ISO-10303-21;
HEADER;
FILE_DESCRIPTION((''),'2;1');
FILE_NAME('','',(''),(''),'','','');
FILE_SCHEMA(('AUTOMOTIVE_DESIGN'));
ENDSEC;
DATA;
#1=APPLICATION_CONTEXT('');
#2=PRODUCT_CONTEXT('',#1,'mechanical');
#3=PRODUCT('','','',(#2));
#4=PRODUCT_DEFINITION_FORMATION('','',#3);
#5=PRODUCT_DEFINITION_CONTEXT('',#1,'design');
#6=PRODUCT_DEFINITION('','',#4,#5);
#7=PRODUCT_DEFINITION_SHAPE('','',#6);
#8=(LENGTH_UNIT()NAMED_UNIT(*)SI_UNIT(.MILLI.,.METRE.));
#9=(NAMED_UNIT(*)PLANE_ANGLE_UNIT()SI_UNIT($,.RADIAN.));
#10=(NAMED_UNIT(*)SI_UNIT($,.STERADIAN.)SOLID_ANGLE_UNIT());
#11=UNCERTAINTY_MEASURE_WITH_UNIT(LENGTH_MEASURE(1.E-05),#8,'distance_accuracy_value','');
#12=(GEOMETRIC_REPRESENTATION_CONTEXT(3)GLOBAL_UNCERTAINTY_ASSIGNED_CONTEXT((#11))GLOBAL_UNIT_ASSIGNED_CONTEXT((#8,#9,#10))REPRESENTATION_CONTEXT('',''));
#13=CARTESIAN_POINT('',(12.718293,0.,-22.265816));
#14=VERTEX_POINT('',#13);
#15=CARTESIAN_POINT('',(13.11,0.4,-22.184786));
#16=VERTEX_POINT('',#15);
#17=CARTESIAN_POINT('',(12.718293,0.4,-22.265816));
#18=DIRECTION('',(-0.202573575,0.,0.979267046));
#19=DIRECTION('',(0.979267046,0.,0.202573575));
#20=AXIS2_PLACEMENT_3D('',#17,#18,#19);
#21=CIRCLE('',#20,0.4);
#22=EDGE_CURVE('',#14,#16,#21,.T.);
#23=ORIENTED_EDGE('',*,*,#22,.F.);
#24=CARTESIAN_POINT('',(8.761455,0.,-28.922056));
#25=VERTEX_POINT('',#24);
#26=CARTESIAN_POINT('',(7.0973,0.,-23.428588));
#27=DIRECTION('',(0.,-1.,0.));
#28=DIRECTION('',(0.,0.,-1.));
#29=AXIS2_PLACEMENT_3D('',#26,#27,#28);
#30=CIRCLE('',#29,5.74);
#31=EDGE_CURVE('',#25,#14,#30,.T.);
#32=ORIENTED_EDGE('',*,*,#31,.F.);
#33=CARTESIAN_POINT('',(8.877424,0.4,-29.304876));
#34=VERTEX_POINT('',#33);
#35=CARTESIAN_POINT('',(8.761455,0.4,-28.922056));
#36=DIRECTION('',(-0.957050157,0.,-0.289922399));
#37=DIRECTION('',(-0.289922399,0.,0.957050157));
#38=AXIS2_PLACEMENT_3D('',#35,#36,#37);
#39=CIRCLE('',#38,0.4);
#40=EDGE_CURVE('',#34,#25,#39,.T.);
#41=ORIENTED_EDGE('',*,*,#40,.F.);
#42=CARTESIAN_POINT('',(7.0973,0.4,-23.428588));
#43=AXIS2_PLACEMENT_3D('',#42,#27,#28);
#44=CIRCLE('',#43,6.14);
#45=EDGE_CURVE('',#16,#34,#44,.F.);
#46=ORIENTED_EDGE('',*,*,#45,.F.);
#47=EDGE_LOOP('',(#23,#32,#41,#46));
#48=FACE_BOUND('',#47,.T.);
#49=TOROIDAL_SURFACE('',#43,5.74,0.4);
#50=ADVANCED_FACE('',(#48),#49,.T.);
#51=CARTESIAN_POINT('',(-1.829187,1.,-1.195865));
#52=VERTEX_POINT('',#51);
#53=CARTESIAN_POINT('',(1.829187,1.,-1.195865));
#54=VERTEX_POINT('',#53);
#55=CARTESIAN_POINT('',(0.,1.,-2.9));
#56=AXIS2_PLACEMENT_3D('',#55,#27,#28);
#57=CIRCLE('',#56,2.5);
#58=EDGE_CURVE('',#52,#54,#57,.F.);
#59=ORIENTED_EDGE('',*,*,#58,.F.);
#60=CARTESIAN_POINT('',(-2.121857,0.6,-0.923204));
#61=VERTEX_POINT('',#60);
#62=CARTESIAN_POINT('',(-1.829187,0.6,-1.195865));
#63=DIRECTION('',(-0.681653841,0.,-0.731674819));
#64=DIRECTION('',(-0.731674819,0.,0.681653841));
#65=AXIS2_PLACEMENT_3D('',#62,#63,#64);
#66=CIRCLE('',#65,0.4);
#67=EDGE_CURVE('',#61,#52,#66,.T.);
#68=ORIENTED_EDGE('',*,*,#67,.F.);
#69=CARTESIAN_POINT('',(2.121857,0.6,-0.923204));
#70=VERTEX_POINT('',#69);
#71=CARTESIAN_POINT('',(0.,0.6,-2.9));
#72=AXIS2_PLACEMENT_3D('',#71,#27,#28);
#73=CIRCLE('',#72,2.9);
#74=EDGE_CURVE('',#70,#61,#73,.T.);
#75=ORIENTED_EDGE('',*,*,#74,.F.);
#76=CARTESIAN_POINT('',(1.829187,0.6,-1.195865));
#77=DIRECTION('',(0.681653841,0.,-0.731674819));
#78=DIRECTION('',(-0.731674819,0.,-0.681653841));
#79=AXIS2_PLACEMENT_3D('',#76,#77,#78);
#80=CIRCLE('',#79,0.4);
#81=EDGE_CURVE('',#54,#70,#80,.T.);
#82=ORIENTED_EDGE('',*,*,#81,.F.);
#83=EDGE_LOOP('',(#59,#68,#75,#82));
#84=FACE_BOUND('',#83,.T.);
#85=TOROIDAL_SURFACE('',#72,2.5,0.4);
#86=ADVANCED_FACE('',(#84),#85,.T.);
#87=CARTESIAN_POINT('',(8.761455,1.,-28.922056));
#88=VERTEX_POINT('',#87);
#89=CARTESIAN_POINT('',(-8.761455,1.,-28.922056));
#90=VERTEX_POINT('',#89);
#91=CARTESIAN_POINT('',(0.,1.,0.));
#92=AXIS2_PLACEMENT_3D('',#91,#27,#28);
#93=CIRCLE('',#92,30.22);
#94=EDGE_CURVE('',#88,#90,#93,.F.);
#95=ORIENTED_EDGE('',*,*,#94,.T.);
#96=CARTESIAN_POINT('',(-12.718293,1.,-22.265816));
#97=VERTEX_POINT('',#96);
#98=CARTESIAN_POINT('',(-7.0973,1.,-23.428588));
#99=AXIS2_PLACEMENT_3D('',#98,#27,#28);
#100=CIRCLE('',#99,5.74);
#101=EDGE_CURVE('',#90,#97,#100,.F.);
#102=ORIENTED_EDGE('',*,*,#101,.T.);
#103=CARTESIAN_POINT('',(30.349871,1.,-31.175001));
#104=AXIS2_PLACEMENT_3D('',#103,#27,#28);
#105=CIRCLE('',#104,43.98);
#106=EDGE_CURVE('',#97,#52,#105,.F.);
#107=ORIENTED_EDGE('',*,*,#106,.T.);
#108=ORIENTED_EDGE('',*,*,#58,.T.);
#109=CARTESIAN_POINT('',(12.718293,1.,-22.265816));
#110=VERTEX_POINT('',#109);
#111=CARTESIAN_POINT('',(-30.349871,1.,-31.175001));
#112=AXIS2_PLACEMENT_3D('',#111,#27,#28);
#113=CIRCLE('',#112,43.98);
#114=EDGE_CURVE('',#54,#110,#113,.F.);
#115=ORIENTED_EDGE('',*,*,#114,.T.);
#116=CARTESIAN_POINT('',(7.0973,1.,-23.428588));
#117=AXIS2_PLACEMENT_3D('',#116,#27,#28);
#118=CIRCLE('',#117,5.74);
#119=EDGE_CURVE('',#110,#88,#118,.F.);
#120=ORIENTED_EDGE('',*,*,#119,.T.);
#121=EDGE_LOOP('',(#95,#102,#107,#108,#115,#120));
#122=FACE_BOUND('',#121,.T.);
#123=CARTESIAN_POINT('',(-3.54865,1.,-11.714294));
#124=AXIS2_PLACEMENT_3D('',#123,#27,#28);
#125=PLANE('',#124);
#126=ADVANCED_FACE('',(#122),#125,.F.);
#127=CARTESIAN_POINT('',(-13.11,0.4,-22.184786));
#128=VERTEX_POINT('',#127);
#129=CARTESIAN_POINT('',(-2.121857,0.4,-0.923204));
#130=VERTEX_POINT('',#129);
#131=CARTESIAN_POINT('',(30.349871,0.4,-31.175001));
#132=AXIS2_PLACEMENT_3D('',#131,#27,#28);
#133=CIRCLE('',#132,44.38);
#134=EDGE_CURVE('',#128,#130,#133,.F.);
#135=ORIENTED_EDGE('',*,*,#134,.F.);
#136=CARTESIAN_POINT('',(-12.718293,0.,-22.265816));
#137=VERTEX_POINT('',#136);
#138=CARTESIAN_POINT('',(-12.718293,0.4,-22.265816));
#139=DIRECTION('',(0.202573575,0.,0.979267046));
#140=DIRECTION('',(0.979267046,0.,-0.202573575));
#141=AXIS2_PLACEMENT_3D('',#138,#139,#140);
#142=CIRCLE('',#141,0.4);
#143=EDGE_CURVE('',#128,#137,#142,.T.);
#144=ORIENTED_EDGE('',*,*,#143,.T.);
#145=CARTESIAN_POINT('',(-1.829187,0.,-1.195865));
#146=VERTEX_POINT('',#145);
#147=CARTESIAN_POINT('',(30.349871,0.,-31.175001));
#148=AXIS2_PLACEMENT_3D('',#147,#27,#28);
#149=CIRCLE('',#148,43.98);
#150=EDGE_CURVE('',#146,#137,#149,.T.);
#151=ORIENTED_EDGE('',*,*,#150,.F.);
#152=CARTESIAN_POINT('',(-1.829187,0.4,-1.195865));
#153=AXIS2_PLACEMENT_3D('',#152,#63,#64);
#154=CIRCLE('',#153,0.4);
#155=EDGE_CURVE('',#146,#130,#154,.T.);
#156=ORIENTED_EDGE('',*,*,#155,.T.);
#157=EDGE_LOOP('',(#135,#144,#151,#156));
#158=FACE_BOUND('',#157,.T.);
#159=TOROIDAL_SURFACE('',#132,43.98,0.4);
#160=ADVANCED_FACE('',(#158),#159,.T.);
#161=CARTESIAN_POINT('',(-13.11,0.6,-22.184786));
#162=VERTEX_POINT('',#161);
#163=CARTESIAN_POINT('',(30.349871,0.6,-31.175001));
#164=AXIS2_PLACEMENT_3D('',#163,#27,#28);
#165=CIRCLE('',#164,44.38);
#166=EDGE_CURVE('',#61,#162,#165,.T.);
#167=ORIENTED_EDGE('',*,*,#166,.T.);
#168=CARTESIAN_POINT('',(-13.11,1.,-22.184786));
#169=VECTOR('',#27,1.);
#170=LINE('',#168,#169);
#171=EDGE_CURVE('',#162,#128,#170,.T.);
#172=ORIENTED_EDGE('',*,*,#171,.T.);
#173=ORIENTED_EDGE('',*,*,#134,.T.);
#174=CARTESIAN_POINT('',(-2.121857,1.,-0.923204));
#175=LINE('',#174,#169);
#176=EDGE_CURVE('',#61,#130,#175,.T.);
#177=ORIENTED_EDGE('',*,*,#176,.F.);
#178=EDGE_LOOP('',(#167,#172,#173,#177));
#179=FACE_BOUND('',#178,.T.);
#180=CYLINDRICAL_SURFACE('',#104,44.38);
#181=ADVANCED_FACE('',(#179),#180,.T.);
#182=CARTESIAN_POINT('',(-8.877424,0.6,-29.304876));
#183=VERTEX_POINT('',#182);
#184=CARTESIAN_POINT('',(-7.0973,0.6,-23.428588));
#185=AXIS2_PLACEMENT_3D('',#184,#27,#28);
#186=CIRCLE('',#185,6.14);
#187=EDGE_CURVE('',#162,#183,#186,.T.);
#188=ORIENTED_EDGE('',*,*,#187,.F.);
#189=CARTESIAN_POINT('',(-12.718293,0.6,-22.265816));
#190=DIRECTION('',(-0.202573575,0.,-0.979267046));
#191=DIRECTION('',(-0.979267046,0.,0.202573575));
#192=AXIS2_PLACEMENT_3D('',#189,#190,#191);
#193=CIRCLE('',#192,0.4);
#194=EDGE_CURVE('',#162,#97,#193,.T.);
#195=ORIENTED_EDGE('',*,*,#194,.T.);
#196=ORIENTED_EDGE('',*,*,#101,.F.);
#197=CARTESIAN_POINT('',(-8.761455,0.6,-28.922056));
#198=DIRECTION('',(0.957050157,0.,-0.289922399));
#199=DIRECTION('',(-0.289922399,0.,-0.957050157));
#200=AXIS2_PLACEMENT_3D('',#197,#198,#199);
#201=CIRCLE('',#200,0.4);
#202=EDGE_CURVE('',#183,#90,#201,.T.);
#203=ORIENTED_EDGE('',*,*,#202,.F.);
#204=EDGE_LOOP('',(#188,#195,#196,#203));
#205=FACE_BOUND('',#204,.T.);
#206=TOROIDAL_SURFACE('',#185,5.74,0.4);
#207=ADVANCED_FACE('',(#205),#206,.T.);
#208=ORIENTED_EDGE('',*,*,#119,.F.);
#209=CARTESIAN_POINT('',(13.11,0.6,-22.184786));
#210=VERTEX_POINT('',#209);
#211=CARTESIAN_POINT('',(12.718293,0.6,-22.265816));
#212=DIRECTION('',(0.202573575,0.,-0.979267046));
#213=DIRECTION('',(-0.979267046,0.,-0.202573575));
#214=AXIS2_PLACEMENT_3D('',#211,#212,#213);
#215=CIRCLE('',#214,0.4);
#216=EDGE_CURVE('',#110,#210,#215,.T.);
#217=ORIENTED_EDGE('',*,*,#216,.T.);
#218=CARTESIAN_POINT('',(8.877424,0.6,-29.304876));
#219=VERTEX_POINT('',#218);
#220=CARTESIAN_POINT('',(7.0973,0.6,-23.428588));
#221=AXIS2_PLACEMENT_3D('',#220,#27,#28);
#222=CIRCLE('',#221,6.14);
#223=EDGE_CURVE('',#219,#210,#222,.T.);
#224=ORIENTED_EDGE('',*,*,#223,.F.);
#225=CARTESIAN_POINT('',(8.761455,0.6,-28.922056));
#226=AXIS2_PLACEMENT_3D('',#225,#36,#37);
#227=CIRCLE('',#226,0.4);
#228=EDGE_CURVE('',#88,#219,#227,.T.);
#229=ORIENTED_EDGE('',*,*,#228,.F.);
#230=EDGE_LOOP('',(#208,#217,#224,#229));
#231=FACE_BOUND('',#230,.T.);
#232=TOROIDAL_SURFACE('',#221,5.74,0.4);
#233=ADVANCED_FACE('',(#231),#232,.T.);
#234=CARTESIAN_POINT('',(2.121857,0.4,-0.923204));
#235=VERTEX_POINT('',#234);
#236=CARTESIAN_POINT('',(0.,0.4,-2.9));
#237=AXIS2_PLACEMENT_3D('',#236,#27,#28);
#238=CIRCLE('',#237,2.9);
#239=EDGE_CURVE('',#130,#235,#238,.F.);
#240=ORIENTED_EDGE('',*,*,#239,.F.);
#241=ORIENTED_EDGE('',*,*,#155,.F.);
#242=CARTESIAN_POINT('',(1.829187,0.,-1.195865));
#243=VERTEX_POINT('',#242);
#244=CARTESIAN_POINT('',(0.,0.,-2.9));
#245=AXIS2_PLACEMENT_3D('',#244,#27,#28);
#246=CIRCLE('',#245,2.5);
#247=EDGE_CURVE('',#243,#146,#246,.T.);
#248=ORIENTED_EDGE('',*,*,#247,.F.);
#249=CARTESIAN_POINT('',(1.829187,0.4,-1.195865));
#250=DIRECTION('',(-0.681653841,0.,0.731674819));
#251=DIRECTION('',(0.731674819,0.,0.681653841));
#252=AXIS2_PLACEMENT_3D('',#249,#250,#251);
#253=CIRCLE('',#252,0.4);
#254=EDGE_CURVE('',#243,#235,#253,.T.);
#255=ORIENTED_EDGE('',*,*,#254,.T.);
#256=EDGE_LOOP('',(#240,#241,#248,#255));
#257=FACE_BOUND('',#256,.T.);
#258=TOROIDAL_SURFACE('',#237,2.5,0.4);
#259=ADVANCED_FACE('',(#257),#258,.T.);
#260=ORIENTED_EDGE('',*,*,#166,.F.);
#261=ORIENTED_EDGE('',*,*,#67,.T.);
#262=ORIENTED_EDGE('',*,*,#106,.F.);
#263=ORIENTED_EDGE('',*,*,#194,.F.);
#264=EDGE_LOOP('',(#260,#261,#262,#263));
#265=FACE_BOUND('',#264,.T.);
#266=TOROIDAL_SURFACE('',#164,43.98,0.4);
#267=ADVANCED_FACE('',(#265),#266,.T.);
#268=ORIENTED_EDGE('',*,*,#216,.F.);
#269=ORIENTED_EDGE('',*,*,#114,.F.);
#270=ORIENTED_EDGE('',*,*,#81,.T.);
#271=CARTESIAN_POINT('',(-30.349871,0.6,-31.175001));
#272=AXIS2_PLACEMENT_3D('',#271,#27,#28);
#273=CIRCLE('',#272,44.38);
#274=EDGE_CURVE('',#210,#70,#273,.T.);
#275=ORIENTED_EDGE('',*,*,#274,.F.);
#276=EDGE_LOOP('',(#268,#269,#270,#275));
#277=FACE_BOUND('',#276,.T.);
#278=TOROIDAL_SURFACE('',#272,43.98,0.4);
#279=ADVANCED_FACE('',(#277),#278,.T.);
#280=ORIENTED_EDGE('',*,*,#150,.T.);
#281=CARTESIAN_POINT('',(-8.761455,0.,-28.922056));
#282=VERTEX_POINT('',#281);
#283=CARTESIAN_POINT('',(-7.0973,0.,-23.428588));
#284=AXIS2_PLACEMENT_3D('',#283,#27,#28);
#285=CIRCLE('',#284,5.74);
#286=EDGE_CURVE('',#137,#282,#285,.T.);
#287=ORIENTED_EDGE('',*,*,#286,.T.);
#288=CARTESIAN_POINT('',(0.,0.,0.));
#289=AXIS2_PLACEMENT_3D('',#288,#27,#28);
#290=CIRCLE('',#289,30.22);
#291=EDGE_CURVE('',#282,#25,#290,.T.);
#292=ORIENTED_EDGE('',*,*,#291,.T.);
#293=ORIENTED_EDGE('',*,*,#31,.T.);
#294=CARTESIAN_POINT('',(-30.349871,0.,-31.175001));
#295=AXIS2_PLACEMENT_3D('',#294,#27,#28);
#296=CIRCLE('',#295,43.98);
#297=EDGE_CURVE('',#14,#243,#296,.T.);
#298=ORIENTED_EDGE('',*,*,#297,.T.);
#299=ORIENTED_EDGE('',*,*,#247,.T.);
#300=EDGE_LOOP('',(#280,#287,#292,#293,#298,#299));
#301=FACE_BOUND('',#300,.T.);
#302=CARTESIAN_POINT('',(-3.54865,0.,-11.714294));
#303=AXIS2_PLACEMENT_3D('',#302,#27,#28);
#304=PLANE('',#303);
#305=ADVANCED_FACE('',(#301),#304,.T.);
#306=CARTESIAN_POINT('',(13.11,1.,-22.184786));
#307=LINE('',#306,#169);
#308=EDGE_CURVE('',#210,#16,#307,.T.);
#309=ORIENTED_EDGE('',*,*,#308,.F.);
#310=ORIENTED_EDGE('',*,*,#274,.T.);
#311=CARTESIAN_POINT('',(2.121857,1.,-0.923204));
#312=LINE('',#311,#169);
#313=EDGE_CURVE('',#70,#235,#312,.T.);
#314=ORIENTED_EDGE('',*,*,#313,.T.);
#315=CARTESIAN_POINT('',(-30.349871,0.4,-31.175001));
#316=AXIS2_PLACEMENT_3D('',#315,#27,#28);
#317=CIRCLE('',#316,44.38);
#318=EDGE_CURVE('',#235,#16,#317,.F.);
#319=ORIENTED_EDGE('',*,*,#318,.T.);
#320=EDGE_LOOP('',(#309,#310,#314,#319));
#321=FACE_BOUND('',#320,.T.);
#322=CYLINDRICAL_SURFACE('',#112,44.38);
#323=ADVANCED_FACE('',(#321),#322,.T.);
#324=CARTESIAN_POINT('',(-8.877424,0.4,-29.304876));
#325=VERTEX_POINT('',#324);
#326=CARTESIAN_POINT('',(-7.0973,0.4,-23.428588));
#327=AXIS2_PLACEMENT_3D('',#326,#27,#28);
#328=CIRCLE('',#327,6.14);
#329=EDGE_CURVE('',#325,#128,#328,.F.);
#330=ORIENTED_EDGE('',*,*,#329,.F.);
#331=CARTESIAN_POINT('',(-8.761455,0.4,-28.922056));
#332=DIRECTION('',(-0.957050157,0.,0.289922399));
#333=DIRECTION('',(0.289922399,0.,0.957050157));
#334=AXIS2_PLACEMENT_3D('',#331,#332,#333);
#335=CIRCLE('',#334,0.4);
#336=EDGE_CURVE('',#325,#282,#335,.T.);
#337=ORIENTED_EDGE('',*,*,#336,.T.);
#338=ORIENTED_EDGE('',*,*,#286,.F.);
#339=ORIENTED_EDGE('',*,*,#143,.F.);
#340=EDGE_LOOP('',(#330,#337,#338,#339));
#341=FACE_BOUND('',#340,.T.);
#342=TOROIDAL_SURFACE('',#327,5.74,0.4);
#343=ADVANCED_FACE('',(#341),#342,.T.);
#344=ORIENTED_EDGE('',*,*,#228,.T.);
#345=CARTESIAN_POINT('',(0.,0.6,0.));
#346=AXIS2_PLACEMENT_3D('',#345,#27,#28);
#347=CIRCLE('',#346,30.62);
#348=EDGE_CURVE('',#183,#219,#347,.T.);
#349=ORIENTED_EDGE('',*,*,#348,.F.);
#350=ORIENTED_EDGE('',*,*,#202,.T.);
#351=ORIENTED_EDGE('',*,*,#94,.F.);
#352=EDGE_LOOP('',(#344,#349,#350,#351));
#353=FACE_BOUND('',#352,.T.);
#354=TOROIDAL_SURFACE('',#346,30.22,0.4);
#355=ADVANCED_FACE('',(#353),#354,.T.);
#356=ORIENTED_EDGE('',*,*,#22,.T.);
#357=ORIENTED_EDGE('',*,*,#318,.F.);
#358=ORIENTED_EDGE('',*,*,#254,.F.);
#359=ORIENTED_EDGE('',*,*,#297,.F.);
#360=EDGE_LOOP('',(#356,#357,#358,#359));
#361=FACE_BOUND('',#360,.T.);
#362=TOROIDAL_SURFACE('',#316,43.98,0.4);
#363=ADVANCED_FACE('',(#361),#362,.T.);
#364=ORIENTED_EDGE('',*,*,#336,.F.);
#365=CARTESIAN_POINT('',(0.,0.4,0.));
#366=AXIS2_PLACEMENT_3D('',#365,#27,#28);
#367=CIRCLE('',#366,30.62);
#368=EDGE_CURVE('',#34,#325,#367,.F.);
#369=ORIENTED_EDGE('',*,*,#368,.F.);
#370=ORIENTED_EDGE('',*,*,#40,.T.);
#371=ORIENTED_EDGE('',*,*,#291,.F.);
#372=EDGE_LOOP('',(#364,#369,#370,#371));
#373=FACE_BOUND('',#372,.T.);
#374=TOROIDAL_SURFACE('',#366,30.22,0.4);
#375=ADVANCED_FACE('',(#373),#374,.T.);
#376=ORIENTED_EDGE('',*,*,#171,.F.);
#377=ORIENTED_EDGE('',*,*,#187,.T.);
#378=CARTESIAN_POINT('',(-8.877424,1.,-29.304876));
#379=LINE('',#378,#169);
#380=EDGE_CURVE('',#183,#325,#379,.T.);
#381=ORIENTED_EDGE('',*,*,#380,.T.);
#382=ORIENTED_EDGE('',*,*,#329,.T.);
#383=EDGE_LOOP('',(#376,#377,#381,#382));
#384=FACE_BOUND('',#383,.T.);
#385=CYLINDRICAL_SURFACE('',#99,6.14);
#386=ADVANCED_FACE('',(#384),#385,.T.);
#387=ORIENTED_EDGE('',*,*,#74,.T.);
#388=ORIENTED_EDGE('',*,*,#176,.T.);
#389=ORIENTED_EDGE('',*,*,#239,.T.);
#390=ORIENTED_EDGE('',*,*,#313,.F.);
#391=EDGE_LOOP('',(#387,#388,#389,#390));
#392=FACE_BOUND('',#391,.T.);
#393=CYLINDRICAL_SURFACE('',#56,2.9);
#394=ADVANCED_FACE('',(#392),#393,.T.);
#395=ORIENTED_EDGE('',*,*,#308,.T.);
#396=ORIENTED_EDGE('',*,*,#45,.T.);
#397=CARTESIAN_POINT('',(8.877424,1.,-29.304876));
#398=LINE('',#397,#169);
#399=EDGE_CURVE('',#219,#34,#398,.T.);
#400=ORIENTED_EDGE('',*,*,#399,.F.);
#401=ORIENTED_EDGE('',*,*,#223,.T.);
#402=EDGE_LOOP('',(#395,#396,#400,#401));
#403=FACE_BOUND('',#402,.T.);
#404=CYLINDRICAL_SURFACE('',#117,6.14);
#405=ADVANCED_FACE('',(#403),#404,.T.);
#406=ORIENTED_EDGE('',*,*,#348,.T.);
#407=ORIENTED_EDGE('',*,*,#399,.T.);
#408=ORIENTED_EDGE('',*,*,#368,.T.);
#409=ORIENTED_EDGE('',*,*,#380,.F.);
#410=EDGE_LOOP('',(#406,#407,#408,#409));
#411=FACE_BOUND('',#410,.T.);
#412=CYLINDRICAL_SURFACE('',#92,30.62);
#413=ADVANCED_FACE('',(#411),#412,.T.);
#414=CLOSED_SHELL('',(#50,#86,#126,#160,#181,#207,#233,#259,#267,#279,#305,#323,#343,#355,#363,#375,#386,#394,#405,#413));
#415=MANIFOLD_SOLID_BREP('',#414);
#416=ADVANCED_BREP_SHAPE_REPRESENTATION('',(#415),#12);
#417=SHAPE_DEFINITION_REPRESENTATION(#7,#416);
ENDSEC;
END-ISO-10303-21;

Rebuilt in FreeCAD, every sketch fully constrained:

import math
import FreeCAD as App
import Part
import Sketcher
from FreeCAD import Vector
Q = App.Units.Quantity


def edges_at(feature, points):
    """Names of the edges that pass closest to the given points."""
    edges = feature.Shape.Edges
    near = lambda p: min(range(len(edges)), key=lambda i: edges[i].distToShape(Part.Vertex(*p))[0])
    return sorted({f"Edge{near(p) + 1}" for p in points})

doc = App.newDocument("Part")
body = doc.addObject("PartDesign::Body", "Body")

# Sketch on XZ plane
sketch1 = doc.addObject("Sketcher::SketchObject", "Sketch")
body.addObject(sketch1)
sketch1.AttachmentSupport = (doc.XZ_Plane, [""])
sketch1.MapMode = "FlatFace"
sketch1.addGeometry(Part.ArcOfCircle(Part.Circle(Vector(0, 0, 0), Vector(0, 0, 1), 30.6), math.radians(-107), math.radians(-73)), False)
sketch1.addGeometry(Part.ArcOfCircle(Part.Circle(Vector(-7.1, -23.4, 0), Vector(0, 0, 1), 6.1), math.radians(168), math.radians(253)), False)
sketch1.addGeometry(Part.ArcOfCircle(Part.Circle(Vector(30.3, -31.2, 0), Vector(0, 0, 1), 44.4), math.radians(137), math.radians(168)), False)
sketch1.addGeometry(Part.ArcOfCircle(Part.Circle(Vector(0, -2.9, 0), Vector(0, 0, 1), 2.9), math.radians(43), math.radians(137)), False)
sketch1.addGeometry(Part.ArcOfCircle(Part.Circle(Vector(-30.3, -31.2, 0), Vector(0, 0, 1), 44.4), math.radians(12), math.radians(43)), False)
sketch1.addGeometry(Part.ArcOfCircle(Part.Circle(Vector(7.1, -23.4, 0), Vector(0, 0, 1), 6.1), math.radians(-73), math.radians(12)), False)
sketch1.addConstraint(Sketcher.Constraint("Tangent", 0, 1, 1, 2))
sketch1.addConstraint(Sketcher.Constraint("Tangent", 1, 1, 2, 2))
sketch1.addConstraint(Sketcher.Constraint("Tangent", 2, 1, 3, 2))
sketch1.addConstraint(Sketcher.Constraint("Tangent", 3, 1, 4, 2))
sketch1.addConstraint(Sketcher.Constraint("Tangent", 4, 1, 5, 2))
sketch1.addConstraint(Sketcher.Constraint("Tangent", 5, 1, 0, 2))
sketch1.addConstraint(Sketcher.Constraint("Coincident", 0, 3, -1, 1))
sketch1.addConstraint(Sketcher.Constraint("Equal", 2, 4))
sketch1.addConstraint(Sketcher.Constraint("Equal", 1, 5))
sketch1.addConstraint(Sketcher.Constraint("Symmetric", 2, 3, 4, 3, -2))
sketch1.addConstraint(Sketcher.Constraint("Radius", 3, Q("2.9 mm")))
sketch1.addConstraint(Sketcher.Constraint("Radius", 0, Q("30.62 mm")))
sketch1.addConstraint(Sketcher.Constraint("Radius", 1, Q("6.14 mm")))
sketch1.addConstraint(Sketcher.Constraint("Radius", 2, Q("44.38 mm")))
sketch1.addConstraint(Sketcher.Constraint("DistanceY", 3, 3, -1, 1, Q("2.9 mm")))
sketch1.addConstraint(Sketcher.Constraint("DistanceX", 1, 1, -1, 1, Q("13.11 mm")))
pad1 = doc.addObject("PartDesign::Pad", "Pad")
body.addObject(pad1)
pad1.Profile = sketch1
pad1.Length = 1
pad1.Reversed = True
doc.recompute()

fillet = doc.addObject("PartDesign::Fillet", "Fillet")
body.addObject(fillet)
fillet.Base = (pad1, edges_at(pad1, [
    (0, 1, 0),
    (9.076, 1, -10.799),
    (12.375, 1, -26.566),
    (0, 1, -30.62),
    (-12.375, 1, -26.566),
    (0, 0, -30.62),
    (12.375, 0, -26.566),
    (9.076, 0, -10.799),
    (0, 0, 0),
    (-9.076, 0, -10.799),
    (-12.375, 0, -26.566),
    (-9.076, 1, -10.799),
]))
fillet.Radius = 0.4

doc.recompute()
